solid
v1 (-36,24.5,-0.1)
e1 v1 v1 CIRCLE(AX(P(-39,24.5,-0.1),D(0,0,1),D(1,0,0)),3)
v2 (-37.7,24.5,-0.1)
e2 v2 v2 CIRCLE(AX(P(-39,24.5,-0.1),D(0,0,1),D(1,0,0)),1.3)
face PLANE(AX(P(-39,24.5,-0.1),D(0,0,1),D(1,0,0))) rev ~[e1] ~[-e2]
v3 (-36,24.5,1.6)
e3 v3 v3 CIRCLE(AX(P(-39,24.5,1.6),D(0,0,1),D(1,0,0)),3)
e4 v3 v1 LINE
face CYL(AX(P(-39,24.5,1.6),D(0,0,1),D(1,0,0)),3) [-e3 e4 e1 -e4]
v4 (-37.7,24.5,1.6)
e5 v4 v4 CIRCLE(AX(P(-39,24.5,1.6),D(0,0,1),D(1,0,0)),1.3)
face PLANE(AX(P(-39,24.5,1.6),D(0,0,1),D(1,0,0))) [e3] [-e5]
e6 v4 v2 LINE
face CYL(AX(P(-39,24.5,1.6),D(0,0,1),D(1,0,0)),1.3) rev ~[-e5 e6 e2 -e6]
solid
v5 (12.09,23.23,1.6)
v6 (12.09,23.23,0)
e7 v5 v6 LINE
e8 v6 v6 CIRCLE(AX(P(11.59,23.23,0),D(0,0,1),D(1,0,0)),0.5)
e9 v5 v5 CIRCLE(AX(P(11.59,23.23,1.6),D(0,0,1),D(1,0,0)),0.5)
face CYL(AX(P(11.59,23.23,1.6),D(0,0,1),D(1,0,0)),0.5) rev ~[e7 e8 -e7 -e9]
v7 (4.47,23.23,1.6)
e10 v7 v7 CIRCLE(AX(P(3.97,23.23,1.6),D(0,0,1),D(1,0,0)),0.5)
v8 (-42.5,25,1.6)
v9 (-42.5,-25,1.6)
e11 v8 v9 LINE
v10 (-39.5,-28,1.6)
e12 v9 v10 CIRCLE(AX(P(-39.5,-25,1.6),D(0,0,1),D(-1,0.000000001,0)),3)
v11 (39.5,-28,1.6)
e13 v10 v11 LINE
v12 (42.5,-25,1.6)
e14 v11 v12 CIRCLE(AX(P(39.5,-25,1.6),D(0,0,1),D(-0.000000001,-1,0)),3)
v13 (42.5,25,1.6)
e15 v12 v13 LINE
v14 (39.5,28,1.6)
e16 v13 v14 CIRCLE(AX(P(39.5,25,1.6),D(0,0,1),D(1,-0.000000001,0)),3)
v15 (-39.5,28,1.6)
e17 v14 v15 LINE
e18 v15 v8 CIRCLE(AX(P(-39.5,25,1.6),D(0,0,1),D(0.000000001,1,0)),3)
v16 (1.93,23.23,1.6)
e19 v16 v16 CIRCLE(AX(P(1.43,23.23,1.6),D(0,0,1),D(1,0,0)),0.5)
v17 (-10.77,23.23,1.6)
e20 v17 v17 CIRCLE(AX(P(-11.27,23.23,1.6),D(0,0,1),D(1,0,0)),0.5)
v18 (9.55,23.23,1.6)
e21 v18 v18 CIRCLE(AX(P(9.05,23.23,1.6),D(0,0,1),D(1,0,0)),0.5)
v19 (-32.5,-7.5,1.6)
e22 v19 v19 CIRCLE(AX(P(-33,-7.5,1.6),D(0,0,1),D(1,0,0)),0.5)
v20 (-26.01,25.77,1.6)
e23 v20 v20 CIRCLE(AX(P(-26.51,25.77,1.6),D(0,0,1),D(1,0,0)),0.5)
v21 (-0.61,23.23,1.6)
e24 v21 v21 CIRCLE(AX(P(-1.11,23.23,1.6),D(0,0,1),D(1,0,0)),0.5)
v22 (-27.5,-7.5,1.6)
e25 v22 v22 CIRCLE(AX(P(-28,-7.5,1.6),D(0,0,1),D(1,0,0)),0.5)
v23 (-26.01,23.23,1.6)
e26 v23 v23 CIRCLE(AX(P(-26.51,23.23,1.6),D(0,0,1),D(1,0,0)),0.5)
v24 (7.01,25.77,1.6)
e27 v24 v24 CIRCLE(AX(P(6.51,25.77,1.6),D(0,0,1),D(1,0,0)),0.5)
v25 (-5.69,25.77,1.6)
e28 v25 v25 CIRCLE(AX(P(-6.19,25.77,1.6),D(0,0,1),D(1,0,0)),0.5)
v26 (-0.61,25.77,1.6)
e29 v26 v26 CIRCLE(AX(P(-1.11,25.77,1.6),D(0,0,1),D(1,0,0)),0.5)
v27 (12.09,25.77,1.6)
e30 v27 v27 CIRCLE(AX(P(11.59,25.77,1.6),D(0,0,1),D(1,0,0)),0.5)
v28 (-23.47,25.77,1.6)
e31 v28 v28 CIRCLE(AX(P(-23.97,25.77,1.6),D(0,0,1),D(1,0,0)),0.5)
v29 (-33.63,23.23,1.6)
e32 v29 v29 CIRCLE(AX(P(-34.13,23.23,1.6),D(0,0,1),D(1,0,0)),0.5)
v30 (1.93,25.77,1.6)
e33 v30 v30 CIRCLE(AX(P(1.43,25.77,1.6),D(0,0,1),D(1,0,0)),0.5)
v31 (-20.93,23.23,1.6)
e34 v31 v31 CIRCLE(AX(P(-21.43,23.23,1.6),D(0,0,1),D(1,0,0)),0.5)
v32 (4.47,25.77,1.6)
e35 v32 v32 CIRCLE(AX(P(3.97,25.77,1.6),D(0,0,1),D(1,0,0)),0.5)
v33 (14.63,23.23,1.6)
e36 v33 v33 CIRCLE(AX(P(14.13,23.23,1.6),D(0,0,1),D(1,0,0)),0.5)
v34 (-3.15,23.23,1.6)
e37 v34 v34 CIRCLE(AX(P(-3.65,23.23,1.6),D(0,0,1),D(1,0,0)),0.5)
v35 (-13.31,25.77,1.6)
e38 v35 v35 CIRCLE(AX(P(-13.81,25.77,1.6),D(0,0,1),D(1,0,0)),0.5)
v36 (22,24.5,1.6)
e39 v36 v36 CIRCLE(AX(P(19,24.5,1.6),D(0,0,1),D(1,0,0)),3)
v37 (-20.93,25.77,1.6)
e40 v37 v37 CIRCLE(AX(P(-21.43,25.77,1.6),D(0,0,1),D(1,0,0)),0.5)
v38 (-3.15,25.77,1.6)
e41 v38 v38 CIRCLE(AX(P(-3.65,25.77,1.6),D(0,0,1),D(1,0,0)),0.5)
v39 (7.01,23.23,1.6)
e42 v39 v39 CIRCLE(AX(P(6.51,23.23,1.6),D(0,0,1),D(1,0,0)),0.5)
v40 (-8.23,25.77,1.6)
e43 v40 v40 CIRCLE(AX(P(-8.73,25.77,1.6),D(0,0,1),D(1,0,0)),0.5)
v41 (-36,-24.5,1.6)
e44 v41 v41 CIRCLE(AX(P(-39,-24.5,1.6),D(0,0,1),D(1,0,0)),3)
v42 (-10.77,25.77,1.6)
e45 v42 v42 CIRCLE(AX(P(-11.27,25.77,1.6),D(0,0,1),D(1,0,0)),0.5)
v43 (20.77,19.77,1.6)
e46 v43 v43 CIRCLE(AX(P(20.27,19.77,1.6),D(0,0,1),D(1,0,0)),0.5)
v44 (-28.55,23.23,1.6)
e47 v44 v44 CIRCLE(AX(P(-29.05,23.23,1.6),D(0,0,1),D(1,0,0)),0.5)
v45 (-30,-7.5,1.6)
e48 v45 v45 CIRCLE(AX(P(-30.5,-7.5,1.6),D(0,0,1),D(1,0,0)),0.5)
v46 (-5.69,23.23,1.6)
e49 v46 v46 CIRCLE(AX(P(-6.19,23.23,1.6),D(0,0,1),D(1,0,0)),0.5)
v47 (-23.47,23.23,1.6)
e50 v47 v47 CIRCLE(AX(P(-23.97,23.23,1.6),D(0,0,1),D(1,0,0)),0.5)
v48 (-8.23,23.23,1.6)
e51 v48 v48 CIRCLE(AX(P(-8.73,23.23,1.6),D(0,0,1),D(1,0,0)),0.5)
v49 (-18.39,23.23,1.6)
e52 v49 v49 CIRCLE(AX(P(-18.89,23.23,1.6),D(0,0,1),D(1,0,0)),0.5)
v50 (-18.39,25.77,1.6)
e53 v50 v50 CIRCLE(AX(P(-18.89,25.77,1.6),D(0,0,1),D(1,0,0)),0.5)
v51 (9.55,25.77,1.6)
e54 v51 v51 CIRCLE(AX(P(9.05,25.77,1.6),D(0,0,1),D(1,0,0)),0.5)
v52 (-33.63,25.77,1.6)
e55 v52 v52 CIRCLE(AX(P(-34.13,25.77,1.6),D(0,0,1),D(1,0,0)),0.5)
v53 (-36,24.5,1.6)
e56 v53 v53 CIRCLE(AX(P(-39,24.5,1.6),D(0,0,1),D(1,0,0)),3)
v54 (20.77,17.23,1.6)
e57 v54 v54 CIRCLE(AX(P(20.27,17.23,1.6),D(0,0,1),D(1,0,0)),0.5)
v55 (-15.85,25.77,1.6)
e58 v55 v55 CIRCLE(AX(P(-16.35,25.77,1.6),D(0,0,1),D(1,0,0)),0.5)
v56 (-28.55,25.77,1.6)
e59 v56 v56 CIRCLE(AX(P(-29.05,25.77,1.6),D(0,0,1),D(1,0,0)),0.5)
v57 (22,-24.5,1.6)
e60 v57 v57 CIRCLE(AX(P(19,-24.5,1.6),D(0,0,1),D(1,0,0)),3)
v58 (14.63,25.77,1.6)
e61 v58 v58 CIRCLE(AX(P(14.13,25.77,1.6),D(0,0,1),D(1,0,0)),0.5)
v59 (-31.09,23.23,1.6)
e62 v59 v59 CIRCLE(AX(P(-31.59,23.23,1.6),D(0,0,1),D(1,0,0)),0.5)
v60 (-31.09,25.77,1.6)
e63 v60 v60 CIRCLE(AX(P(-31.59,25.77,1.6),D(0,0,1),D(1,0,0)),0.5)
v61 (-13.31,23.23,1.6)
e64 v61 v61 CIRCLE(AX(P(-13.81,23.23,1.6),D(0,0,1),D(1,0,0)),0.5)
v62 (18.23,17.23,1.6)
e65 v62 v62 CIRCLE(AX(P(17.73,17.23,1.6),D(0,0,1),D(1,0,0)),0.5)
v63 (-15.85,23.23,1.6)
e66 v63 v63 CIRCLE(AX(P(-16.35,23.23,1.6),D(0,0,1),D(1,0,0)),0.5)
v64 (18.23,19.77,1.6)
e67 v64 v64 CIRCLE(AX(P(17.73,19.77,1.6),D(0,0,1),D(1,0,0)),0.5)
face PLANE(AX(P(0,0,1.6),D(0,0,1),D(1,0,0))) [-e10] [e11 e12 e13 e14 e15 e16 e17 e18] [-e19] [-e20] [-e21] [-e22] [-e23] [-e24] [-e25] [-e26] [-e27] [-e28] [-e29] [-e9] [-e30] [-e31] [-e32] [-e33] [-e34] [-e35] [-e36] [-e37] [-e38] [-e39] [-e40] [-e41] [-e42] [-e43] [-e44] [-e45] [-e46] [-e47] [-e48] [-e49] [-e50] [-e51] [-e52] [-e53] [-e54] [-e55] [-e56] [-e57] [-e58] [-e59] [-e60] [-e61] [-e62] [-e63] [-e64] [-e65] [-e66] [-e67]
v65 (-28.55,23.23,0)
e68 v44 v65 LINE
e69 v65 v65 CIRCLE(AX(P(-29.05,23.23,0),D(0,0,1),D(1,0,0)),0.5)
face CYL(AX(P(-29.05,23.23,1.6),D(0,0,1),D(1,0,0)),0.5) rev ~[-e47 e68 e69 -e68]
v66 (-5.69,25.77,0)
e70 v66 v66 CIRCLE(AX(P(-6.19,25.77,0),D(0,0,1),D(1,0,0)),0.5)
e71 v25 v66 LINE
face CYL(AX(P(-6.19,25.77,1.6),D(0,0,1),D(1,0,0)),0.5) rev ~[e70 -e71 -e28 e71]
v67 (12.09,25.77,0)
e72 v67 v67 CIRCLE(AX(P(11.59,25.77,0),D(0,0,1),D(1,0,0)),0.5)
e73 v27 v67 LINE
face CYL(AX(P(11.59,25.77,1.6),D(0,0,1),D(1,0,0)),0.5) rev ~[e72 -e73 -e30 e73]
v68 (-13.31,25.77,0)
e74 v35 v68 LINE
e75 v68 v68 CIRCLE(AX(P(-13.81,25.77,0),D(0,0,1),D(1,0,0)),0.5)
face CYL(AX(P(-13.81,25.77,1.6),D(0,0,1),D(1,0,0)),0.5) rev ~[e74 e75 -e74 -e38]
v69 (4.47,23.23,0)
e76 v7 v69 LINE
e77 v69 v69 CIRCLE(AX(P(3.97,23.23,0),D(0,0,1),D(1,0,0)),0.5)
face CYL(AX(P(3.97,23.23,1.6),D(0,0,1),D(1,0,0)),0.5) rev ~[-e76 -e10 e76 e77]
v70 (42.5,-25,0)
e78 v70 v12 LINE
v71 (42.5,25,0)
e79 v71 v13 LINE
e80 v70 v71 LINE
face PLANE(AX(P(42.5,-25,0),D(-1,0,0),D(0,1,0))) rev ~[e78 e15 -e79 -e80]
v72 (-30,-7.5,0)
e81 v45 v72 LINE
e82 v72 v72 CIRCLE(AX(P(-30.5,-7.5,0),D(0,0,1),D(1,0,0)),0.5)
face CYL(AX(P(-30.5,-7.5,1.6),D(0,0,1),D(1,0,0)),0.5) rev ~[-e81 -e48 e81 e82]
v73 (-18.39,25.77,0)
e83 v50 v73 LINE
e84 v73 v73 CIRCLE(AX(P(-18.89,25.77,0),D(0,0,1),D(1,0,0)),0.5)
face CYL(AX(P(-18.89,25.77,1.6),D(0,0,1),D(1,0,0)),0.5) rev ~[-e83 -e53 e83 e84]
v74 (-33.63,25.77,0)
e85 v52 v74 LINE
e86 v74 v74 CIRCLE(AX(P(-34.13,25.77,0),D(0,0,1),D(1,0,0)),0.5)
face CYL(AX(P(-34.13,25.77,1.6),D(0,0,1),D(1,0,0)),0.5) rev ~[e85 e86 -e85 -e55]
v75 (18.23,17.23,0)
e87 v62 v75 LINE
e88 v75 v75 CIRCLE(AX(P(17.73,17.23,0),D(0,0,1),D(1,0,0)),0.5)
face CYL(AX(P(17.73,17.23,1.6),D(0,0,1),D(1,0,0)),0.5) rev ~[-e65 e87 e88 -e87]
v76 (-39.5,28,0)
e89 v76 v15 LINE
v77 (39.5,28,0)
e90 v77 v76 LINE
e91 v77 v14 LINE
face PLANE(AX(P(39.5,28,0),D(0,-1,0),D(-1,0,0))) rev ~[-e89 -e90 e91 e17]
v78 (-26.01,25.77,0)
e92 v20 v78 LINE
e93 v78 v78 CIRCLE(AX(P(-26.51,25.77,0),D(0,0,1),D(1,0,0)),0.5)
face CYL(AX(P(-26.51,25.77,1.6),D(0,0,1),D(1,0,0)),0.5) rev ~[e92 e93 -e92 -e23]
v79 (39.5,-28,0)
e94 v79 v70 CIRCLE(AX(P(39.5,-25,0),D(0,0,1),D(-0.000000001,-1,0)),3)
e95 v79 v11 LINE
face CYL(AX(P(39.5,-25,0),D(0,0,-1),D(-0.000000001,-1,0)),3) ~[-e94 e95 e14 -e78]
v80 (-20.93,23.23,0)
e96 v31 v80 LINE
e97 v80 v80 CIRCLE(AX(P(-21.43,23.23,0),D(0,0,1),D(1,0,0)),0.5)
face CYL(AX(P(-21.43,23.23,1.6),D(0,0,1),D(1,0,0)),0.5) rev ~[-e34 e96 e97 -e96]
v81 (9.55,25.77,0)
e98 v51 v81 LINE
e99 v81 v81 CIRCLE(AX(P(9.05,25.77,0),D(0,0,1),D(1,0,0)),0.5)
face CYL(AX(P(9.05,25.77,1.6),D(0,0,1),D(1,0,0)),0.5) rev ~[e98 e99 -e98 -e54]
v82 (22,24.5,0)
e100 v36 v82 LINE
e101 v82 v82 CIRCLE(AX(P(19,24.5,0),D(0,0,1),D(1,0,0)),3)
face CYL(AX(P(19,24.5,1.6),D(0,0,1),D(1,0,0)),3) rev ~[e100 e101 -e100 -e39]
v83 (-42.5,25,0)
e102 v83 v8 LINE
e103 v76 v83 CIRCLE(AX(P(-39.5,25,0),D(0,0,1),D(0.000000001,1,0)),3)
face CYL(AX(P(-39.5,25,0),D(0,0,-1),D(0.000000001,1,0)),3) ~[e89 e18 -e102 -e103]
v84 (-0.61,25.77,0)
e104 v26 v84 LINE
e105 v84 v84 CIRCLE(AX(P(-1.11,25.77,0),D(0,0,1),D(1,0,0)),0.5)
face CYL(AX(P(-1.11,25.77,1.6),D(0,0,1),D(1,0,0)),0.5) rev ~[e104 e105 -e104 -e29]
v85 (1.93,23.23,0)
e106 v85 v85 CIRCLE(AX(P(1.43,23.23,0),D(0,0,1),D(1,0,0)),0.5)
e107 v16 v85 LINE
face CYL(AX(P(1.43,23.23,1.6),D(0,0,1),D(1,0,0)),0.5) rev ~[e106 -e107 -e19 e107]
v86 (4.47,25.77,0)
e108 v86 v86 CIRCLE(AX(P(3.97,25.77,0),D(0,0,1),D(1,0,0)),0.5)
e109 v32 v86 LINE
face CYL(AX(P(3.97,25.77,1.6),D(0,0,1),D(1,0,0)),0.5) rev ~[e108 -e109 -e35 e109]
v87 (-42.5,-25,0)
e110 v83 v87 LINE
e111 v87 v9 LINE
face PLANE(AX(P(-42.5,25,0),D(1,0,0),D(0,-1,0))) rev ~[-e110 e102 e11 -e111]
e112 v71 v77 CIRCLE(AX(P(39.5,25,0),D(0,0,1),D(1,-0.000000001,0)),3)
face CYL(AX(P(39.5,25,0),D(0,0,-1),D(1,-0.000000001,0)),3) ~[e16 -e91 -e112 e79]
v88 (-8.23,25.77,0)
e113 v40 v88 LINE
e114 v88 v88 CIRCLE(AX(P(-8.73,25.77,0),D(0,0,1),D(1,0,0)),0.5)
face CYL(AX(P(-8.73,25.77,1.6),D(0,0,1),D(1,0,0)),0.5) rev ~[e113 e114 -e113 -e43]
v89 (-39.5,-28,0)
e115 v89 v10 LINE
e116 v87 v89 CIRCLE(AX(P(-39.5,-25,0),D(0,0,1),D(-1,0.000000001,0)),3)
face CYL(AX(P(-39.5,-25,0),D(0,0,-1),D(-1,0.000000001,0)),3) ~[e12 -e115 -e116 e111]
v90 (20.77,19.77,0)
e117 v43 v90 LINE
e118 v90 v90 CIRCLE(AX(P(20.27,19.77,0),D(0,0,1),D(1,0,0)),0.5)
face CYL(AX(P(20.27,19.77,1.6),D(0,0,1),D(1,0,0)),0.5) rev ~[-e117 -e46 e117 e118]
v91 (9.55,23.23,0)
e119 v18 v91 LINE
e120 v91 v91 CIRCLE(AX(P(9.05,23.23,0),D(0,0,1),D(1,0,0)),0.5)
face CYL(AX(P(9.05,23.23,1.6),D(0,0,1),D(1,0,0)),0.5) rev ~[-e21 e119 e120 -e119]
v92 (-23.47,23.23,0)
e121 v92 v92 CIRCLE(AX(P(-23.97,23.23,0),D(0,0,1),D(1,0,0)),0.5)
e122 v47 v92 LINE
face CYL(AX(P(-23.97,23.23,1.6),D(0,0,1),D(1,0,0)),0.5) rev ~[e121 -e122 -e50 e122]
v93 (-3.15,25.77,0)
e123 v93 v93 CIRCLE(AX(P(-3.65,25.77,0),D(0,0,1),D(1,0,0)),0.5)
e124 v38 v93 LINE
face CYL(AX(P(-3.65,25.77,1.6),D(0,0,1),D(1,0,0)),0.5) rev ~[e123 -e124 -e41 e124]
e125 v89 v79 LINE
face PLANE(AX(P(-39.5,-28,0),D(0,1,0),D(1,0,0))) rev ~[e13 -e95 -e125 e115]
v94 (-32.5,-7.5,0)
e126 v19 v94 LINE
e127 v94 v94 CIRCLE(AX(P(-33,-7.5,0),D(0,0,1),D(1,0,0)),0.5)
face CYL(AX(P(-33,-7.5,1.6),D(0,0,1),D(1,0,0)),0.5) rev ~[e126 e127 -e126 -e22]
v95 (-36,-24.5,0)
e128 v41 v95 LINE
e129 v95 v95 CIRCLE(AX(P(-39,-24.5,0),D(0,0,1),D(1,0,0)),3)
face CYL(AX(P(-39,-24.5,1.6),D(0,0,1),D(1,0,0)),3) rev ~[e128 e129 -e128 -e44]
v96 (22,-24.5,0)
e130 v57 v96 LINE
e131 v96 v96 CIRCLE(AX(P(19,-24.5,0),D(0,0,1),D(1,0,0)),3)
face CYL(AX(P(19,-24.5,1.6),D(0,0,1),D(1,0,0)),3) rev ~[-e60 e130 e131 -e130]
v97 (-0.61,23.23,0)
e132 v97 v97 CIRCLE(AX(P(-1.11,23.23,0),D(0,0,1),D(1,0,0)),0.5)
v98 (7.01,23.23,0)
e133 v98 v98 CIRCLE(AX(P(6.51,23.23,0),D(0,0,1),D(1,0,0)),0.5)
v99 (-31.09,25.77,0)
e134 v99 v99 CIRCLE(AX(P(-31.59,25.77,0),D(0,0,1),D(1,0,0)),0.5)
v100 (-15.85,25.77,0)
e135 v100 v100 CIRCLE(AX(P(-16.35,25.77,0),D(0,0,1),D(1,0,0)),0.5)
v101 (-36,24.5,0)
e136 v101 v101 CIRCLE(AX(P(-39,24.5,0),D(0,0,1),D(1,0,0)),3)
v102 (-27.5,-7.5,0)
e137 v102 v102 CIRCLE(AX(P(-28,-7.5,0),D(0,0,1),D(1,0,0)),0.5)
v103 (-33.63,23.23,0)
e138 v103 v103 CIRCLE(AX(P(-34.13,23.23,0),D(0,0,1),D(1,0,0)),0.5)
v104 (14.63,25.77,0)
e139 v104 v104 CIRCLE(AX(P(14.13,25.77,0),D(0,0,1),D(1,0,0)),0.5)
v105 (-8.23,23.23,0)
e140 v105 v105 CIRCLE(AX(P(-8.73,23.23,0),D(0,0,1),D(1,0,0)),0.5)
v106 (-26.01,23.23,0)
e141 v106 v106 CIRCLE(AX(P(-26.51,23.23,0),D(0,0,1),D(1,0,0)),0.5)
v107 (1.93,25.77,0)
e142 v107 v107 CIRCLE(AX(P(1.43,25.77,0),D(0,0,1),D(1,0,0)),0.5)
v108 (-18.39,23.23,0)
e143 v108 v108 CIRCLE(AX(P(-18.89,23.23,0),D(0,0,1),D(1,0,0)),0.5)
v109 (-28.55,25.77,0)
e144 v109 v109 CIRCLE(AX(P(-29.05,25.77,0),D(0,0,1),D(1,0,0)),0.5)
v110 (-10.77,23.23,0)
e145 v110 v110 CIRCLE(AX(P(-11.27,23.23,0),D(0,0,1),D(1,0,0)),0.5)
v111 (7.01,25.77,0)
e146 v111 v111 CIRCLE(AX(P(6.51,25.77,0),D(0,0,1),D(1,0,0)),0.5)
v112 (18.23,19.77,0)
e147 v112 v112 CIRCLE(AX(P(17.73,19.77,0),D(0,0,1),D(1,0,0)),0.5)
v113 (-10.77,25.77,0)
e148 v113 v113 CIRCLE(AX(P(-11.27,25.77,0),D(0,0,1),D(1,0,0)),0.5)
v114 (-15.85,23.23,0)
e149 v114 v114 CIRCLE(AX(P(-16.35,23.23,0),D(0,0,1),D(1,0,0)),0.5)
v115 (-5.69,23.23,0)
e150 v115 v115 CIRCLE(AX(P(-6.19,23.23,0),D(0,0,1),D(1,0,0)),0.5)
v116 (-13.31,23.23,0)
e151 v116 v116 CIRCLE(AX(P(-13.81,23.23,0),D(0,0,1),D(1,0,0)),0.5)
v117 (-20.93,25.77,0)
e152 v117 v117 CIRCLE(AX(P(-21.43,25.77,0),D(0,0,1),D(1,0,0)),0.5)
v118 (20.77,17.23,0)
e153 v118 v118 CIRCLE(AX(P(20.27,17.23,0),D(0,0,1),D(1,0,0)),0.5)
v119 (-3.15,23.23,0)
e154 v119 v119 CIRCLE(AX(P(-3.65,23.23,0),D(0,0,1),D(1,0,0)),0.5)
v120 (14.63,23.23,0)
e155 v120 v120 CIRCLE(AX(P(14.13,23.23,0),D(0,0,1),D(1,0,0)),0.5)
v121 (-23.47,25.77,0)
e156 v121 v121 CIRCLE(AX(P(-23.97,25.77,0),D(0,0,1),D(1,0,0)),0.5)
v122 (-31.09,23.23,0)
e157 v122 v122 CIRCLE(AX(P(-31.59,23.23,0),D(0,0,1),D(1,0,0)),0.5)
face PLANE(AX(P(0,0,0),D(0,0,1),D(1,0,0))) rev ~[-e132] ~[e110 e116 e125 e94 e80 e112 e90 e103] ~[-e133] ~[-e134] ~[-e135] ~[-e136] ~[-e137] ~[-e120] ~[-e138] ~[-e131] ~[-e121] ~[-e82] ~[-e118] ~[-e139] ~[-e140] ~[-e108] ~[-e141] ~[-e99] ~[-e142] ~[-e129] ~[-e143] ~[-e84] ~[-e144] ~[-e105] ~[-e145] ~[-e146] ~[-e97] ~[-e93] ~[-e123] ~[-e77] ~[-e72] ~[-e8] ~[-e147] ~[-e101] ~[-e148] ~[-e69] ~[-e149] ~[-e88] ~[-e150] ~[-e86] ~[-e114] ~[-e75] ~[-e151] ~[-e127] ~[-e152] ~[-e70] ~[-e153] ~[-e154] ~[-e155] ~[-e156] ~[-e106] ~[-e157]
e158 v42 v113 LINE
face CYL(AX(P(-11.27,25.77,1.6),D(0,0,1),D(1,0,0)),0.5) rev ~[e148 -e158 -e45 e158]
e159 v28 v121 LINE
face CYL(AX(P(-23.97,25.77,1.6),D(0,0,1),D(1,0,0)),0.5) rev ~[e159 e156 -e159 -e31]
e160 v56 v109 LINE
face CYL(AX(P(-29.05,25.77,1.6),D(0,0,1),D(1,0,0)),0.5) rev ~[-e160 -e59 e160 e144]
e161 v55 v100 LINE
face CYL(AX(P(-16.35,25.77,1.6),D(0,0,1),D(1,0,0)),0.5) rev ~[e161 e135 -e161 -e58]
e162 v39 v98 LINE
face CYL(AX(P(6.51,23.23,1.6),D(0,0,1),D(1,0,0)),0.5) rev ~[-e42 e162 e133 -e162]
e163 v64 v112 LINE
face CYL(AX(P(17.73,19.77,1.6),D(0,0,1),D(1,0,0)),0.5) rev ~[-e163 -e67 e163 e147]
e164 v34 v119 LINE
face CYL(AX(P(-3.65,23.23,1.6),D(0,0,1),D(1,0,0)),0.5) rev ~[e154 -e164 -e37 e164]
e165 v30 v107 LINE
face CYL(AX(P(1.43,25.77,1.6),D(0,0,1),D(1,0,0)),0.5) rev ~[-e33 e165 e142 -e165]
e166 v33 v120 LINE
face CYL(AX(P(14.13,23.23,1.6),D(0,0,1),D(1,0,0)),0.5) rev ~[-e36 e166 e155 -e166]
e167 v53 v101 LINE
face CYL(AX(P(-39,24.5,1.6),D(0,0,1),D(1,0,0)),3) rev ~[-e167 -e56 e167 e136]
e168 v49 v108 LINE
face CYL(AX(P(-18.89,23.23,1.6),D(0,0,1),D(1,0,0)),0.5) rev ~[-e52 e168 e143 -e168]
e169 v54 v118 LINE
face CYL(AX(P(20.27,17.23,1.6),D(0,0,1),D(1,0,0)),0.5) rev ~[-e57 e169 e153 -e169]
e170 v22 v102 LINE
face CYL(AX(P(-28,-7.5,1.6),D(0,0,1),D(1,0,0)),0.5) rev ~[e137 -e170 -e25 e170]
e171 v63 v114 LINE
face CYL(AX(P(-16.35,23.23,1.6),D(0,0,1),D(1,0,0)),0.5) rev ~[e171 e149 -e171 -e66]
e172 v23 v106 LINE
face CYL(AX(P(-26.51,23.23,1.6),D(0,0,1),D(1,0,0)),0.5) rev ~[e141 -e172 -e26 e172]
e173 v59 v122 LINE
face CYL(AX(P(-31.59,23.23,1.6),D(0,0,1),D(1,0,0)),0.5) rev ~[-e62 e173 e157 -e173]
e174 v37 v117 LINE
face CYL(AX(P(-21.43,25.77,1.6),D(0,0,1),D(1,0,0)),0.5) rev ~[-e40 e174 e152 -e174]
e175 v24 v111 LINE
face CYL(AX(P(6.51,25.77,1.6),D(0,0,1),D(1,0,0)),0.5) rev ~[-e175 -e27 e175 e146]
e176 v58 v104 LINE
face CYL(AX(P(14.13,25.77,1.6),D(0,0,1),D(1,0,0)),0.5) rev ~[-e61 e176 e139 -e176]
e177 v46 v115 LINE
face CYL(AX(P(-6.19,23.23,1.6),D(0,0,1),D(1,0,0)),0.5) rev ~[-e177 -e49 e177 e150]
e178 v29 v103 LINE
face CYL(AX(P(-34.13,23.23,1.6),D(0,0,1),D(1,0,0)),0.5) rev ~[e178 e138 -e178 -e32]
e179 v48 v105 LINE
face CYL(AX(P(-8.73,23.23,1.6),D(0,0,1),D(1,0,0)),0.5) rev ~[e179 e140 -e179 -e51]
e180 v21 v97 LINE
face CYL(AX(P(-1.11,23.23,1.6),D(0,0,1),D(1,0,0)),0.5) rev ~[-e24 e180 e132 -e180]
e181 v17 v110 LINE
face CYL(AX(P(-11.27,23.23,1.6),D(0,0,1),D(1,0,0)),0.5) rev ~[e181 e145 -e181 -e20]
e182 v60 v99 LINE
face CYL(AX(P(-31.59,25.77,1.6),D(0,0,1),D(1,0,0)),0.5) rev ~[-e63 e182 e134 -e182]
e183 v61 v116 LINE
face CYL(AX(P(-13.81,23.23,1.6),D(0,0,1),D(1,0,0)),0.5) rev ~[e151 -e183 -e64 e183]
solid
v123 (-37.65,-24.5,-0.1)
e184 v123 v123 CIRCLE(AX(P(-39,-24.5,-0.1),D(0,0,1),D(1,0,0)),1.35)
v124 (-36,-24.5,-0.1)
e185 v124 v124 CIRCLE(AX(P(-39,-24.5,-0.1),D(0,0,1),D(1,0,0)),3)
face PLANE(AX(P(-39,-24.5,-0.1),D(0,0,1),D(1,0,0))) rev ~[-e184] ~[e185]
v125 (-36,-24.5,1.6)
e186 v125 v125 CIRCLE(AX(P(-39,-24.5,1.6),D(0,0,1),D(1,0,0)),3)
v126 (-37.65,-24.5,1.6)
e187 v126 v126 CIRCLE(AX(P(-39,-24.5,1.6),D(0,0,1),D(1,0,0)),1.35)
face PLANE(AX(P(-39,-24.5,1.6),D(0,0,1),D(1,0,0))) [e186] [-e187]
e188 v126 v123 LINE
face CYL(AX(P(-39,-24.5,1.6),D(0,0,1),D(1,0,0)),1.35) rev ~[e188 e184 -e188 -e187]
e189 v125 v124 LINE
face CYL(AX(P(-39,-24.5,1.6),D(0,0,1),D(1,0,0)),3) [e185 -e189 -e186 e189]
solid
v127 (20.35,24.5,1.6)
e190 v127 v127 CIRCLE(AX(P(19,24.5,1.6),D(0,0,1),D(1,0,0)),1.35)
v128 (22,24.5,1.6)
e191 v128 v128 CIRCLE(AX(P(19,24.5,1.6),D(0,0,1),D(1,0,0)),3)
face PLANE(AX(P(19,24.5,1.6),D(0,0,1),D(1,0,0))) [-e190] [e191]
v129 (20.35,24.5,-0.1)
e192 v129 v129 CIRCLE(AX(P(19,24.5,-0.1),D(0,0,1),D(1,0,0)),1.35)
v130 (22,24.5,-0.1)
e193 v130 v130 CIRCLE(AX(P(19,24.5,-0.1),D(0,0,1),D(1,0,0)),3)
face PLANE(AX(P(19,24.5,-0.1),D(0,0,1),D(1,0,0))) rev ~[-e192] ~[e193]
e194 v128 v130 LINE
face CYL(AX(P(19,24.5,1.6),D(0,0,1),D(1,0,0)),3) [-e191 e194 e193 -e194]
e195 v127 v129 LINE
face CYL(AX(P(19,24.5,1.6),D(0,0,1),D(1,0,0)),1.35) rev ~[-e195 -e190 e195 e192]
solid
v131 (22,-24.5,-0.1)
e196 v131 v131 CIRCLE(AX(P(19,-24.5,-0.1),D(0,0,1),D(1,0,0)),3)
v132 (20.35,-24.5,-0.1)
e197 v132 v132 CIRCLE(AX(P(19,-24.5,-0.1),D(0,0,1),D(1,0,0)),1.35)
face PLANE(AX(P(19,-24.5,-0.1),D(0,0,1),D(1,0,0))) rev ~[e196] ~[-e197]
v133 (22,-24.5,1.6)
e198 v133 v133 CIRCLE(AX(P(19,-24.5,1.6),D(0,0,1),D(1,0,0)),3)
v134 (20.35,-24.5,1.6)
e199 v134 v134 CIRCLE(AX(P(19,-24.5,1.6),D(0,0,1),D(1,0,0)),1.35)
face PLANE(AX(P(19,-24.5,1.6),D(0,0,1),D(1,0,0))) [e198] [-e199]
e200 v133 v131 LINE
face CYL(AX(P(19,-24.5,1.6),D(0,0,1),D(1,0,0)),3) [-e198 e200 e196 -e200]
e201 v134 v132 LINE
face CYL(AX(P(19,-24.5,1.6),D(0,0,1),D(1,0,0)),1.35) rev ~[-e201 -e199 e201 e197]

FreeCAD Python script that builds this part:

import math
import FreeCAD as App
import Part
import Sketcher

V = App.Vector
Q = App.Units.Quantity

doc = App.newDocument("Part")
params = doc.addObject("Spreadsheet::Sheet", "Params")
for row, (alias, value) in enumerate([
    ("sketch1_radius", "3 mm"),
    ("sketch1_width", "79 mm"),
    ("sketch1_height", "50 mm"),
    ("pad1_length", "1.6 mm"),
    ("sketch2_diameter", "6 mm"),
    ("sketch3_diameter", "1 mm"),
    ("sketch4_diameter", "1 mm"),
    ("sketch5_diameter", "1 mm"),
    ("sketch6_diameter", "6 mm"),
    ("sketch6_diameter2", "2.7 mm"),
    ("pad2_length", "1.7 mm"),
    ("sketch7_diameter", "6 mm"),
    ("sketch7_diameter2", "2.7 mm"),
    ("pad3_length", "1.7 mm"),
    ("sketch8_diameter", "6 mm"),
    ("sketch8_diameter2", "2.7 mm"),
    ("pad4_length", "1.7 mm"),
    ("sketch9_diameter", "6 mm"),
    ("sketch9_diameter2", "2.6 mm"),
    ("pad5_length", "1.7 mm"),
], start=1):
    params.set(f"A{row}", alias)
    params.set(f"B{row}", "=" + value)
    params.setAlias(f"B{row}", alias)

body = doc.addObject("PartDesign::Body", "Body")

# Sketch on XY plane
sketch1 = doc.addObject("Sketcher::SketchObject", "Sketch")
body.addObject(sketch1)
sketch1.AttachmentSupport = (doc.XY_Plane, [""])
sketch1.MapMode = "FlatFace"
sketch1.addGeometry([
    Part.LineSegment(V(-39.5, -28, 0), V(39.5, -28, 0)),  # 0
    Part.ArcOfCircle(Part.Circle(V(39.5, -25, 0), V(0, 0, 1), 3), math.radians(-90), math.radians(0)),  # 1
    Part.LineSegment(V(42.5, -25, 0), V(42.5, 25, 0)),  # 2
    Part.ArcOfCircle(Part.Circle(V(39.5, 25, 0), V(0, 0, 1), 3), math.radians(0), math.radians(90)),  # 3
    Part.LineSegment(V(39.5, 28, 0), V(-39.5, 28, 0)),  # 4
    Part.ArcOfCircle(Part.Circle(V(-39.5, 25, 0), V(0, 0, 1), 3), math.radians(90), math.radians(180)),  # 5
    Part.LineSegment(V(-42.5, 25, 0), V(-42.5, -25, 0)),  # 6
    Part.ArcOfCircle(Part.Circle(V(-39.5, -25, 0), V(0, 0, 1), 3), math.radians(180), math.radians(270)),  # 7
], False)
sketch1.addConstraint([
    Sketcher.Constraint("Tangent", 0, 2, 1, 1),
    Sketcher.Constraint("Tangent", 1, 2, 2, 1),
    Sketcher.Constraint("Tangent", 2, 2, 3, 1),
    Sketcher.Constraint("Tangent", 3, 2, 4, 1),
    Sketcher.Constraint("Tangent", 4, 2, 5, 1),
    Sketcher.Constraint("Tangent", 5, 2, 6, 1),
    Sketcher.Constraint("Tangent", 6, 2, 7, 1),
    Sketcher.Constraint("Tangent", 7, 2, 0, 1),
    Sketcher.Constraint("Horizontal", 0),
    Sketcher.Constraint("Vertical", 2),
    Sketcher.Constraint("Horizontal", 4),
    Sketcher.Constraint("Vertical", 6),
    Sketcher.Constraint("Equal", 1, 3),
    Sketcher.Constraint("Equal", 3, 5),
    Sketcher.Constraint("Equal", 5, 7),
    Sketcher.Constraint("Symmetric", 1, 3, 5, 3, -1, 1),
    Sketcher.Constraint("Radius", 1, Q("3 mm")),
    Sketcher.Constraint("DistanceX", 0, 1, 0, 2, Q("79 mm")),
    Sketcher.Constraint("DistanceY", 2, 1, 2, 2, Q("50 mm")),
])
sketch1.setExpression("Constraints[16]", "Params.sketch1_radius")
sketch1.setExpression("Constraints[17]", "Params.sketch1_width")
sketch1.setExpression("Constraints[18]", "Params.sketch1_height")
pad1 = doc.addObject("PartDesign::Pad", "Pad")
body.addObject(pad1)
pad1.Profile = sketch1
pad1.setExpression("Length", "Params.pad1_length")

# Sketch on XY plane
sketch2 = doc.addObject("Sketcher::SketchObject", "Sketch001")
body.addObject(sketch2)
sketch2.AttachmentSupport = (doc.XY_Plane, [""])
sketch2.MapMode = "FlatFace"
sketch2.AttachmentOffset = App.Placement(V(0, 0, 1.6), App.Rotation())
sketch2.addGeometry([
    Part.Circle(V(-39, 24.5, 0), V(0, 0, 1), 3),
    Part.Circle(V(-39, -24.5, 0), V(0, 0, 1), 3),
    Part.Circle(V(19, -24.5, 0), V(0, 0, 1), 3),
    Part.Circle(V(19, 24.5, 0), V(0, 0, 1), 3),
], False)
sketch2.addConstraint([
    Sketcher.Constraint("Equal", 0, 1),
    Sketcher.Constraint("Equal", 1, 2),
    Sketcher.Constraint("Equal", 2, 3),
    Sketcher.Constraint("Symmetric", 0, 3, 1, 3, -1),
    Sketcher.Constraint("Symmetric", 2, 3, 3, 3, -1),
    Sketcher.Constraint("Horizontal", 1, 3, 2, 3),
    Sketcher.Constraint("Diameter", 0, Q("6 mm")),
    Sketcher.Constraint("DistanceX", 0, 3, -1, 1, Q("39 mm")),
    Sketcher.Constraint("DistanceX", -1, 1, 2, 3, Q("19 mm")),
    Sketcher.Constraint("DistanceY", 1, 3, 0, 3, Q("49 mm")),
])
sketch2.setExpression("Constraints[6]", "Params.sketch2_diameter")
pocket1 = doc.addObject("PartDesign::Pocket", "Pocket")
body.addObject(pocket1)
pocket1.Profile = sketch2
pocket1.Type = "ThroughAll"

# Sketch on XY plane
sketch3 = doc.addObject("Sketcher::SketchObject", "Sketch002")
body.addObject(sketch3)
sketch3.AttachmentSupport = (doc.XY_Plane, [""])
sketch3.MapMode = "FlatFace"
sketch3.AttachmentOffset = App.Placement(V(0, 0, 1.6), App.Rotation())
sketch3.addGeometry([
    Part.Circle(V(-33, -7.5, 0), V(0, 0, 1), 0.5),
    Part.Circle(V(-30.5, -7.5, 0), V(0, 0, 1), 0.5),
    Part.Circle(V(-28, -7.5, 0), V(0, 0, 1), 0.5),
], False)
sketch3.addConstraint([
    Sketcher.Constraint("Equal", 0, 1),
    Sketcher.Constraint("Equal", 1, 2),
    Sketcher.Constraint("Horizontal", 0, 3, 1, 3),
    Sketcher.Constraint("Horizontal", 1, 3, 2, 3),
    Sketcher.Constraint("Diameter", 0, Q("1 mm")),
    Sketcher.Constraint("DistanceX", 0, 3, -1, 1, Q("33 mm")),
    Sketcher.Constraint("DistanceX", 2, 3, -1, 1, Q("28 mm")),
    Sketcher.Constraint("DistanceY", 0, 3, -1, 1, Q("7.5 mm")),
    Sketcher.Constraint("DistanceX", 1, 3, -1, 1, Q("30.5 mm")),
])
sketch3.setExpression("Constraints[4]", "Params.sketch3_diameter")
pocket2 = doc.addObject("PartDesign::Pocket", "Pocket001")
body.addObject(pocket2)
pocket2.Profile = sketch3
pocket2.Type = "ThroughAll"

# Sketch on XY plane
sketch4 = doc.addObject("Sketcher::SketchObject", "Sketch003")
body.addObject(sketch4)
sketch4.AttachmentSupport = (doc.XY_Plane, [""])
sketch4.MapMode = "FlatFace"
sketch4.AttachmentOffset = App.Placement(V(0, 0, 1.6), App.Rotation())
sketch4.addGeometry([
    Part.Circle(V(-34.1, 25.8, 0), V(0, 0, 1), 0.5),  # 0
    Part.Circle(V(-34.1, 23.2, 0), V(0, 0, 1), 0.5),  # 1
    Part.Circle(V(-31.6, 25.8, 0), V(0, 0, 1), 0.5),  # 2
    Part.Circle(V(-31.6, 23.2, 0), V(0, 0, 1), 0.5),  # 3
    Part.Circle(V(-29.1, 25.8, 0), V(0, 0, 1), 0.5),  # 4
    Part.Circle(V(-29.1, 23.2, 0), V(0, 0, 1), 0.5),  # 5
    Part.Circle(V(-26.5, 25.8, 0), V(0, 0, 1), 0.5),  # 6
    Part.Circle(V(-26.5, 23.2, 0), V(0, 0, 1), 0.5),  # 7
    Part.Circle(V(-24, 25.8, 0), V(0, 0, 1), 0.5),  # 8
    Part.Circle(V(-24, 23.2, 0), V(0, 0, 1), 0.5),  # 9
    Part.Circle(V(-21.4, 25.8, 0), V(0, 0, 1), 0.5),  # 10
    Part.Circle(V(-21.4, 23.2, 0), V(0, 0, 1), 0.5),  # 11
    Part.Circle(V(-18.9, 25.8, 0), V(0, 0, 1), 0.5),  # 12
    Part.Circle(V(-18.9, 23.2, 0), V(0, 0, 1), 0.5),  # 13
    Part.Circle(V(-16.4, 25.8, 0), V(0, 0, 1), 0.5),  # 14
    Part.Circle(V(-16.4, 23.2, 0), V(0, 0, 1), 0.5),  # 15
    Part.Circle(V(-13.8, 25.8, 0), V(0, 0, 1), 0.5),  # 16
    Part.Circle(V(-13.8, 23.2, 0), V(0, 0, 1), 0.5),  # 17
    Part.Circle(V(-11.3, 25.8, 0), V(0, 0, 1), 0.5),  # 18
    Part.Circle(V(-11.3, 23.2, 0), V(0, 0, 1), 0.5),  # 19
    Part.Circle(V(-8.7, 25.8, 0), V(0, 0, 1), 0.5),  # 20
    Part.Circle(V(-8.7, 23.2, 0), V(0, 0, 1), 0.5),  # 21
    Part.Circle(V(-6.2, 25.8, 0), V(0, 0, 1), 0.5),  # 22
    Part.Circle(V(-6.2, 23.2, 0), V(0, 0, 1), 0.5),  # 23
    Part.Circle(V(-3.6, 25.8, 0), V(0, 0, 1), 0.5),  # 24
    Part.Circle(V(-3.6, 23.2, 0), V(0, 0, 1), 0.5),  # 25
    Part.Circle(V(-1.1, 25.8, 0), V(0, 0, 1), 0.5),  # 26
    Part.Circle(V(-1.1, 23.2, 0), V(0, 0, 1), 0.5),  # 27
    Part.Circle(V(1.4, 25.8, 0), V(0, 0, 1), 0.5),  # 28
    Part.Circle(V(1.4, 23.2, 0), V(0, 0, 1), 0.5),  # 29
    Part.Circle(V(4, 25.8, 0), V(0, 0, 1), 0.5),  # 30
    Part.Circle(V(4, 23.2, 0), V(0, 0, 1), 0.5),  # 31
    Part.Circle(V(6.5, 25.8, 0), V(0, 0, 1), 0.5),  # 32
    Part.Circle(V(6.5, 23.2, 0), V(0, 0, 1), 0.5),  # 33
    Part.Circle(V(9.1, 25.8, 0), V(0, 0, 1), 0.5),  # 34
    Part.Circle(V(9.1, 23.2, 0), V(0, 0, 1), 0.5),  # 35
    Part.Circle(V(11.6, 25.8, 0), V(0, 0, 1), 0.5),  # 36
    Part.Circle(V(11.6, 23.2, 0), V(0, 0, 1), 0.5),  # 37
    Part.Circle(V(14.1, 25.8, 0), V(0, 0, 1), 0.5),  # 38
    Part.Circle(V(14.1, 23.2, 0), V(0, 0, 1), 0.5),  # 39
], False)
sketch4.addConstraint([
    Sketcher.Constraint("Equal", 0, 1),
    Sketcher.Constraint("Equal", 1, 2),
    Sketcher.Constraint("Equal", 2, 3),
    Sketcher.Constraint("Equal", 3, 4),
    Sketcher.Constraint("Equal", 4, 5),
    Sketcher.Constraint("Equal", 5, 6),
    Sketcher.Constraint("Equal", 6, 7),
    Sketcher.Constraint("Equal", 7, 8),
    Sketcher.Constraint("Equal", 8, 9),
    Sketcher.Constraint("Equal", 9, 10),
    Sketcher.Constraint("Equal", 10, 11),
    Sketcher.Constraint("Equal", 11, 12),
    Sketcher.Constraint("Equal", 12, 13),
    Sketcher.Constraint("Equal", 13, 14),
    Sketcher.Constraint("Equal", 14, 15),
    Sketcher.Constraint("Equal", 15, 16),
    Sketcher.Constraint("Equal", 16, 17),
    Sketcher.Constraint("Equal", 17, 18),
    Sketcher.Constraint("Equal", 18, 19),
    Sketcher.Constraint("Equal", 19, 20),
    Sketcher.Constraint("Equal", 20, 21),
    Sketcher.Constraint("Equal", 21, 22),
    Sketcher.Constraint("Equal", 22, 23),
    Sketcher.Constraint("Equal", 23, 24),
    Sketcher.Constraint("Equal", 24, 25),
    Sketcher.Constraint("Equal", 25, 26),
    Sketcher.Constraint("Equal", 26, 27),
    Sketcher.Constraint("Equal", 27, 28),
    Sketcher.Constraint("Equal", 28, 29),
    Sketcher.Constraint("Equal", 29, 30),
    Sketcher.Constraint("Equal", 30, 31),
    Sketcher.Constraint("Equal", 31, 32),
    Sketcher.Constraint("Equal", 32, 33),
    Sketcher.Constraint("Equal", 33, 34),
    Sketcher.Constraint("Equal", 34, 35),
    Sketcher.Constraint("Equal", 35, 36),
    Sketcher.Constraint("Equal", 36, 37),
    Sketcher.Constraint("Equal", 37, 38),
    Sketcher.Constraint("Equal", 38, 39),
    Sketcher.Constraint("Horizontal", 0, 3, 2, 3),
    Sketcher.Constraint("Horizontal", 1, 3, 3, 3),
    Sketcher.Constraint("Horizontal", 2, 3, 4, 3),
    Sketcher.Constraint("Horizontal", 3, 3, 5, 3),
    Sketcher.Constraint("Horizontal", 4, 3, 6, 3),
    Sketcher.Constraint("Horizontal", 5, 3, 7, 3),
    Sketcher.Constraint("Horizontal", 6, 3, 8, 3),
    Sketcher.Constraint("Horizontal", 7, 3, 9, 3),
    Sketcher.Constraint("Horizontal", 8, 3, 10, 3),
    Sketcher.Constraint("Horizontal", 9, 3, 11, 3),
    Sketcher.Constraint("Horizontal", 10, 3, 12, 3),
    Sketcher.Constraint("Horizontal", 11, 3, 13, 3),
    Sketcher.Constraint("Horizontal", 12, 3, 14, 3),
    Sketcher.Constraint("Horizontal", 13, 3, 15, 3),
    Sketcher.Constraint("Horizontal", 14, 3, 16, 3),
    Sketcher.Constraint("Horizontal", 15, 3, 17, 3),
    Sketcher.Constraint("Horizontal", 16, 3, 18, 3),
    Sketcher.Constraint("Horizontal", 17, 3, 19, 3),
    Sketcher.Constraint("Horizontal", 18, 3, 20, 3),
    Sketcher.Constraint("Horizontal", 19, 3, 21, 3),
    Sketcher.Constraint("Horizontal", 20, 3, 22, 3),
    Sketcher.Constraint("Horizontal", 21, 3, 23, 3),
    Sketcher.Constraint("Horizontal", 22, 3, 24, 3),
    Sketcher.Constraint("Horizontal", 23, 3, 25, 3),
    Sketcher.Constraint("Horizontal", 24, 3, 26, 3),
    Sketcher.Constraint("Horizontal", 25, 3, 27, 3),
    Sketcher.Constraint("Horizontal", 26, 3, 28, 3),
    Sketcher.Constraint("Horizontal", 27, 3, 29, 3),
    Sketcher.Constraint("Horizontal", 28, 3, 30, 3),
    Sketcher.Constraint("Horizontal", 29, 3, 31, 3),
    Sketcher.Constraint("Horizontal", 30, 3, 32, 3),
    Sketcher.Constraint("Horizontal", 31, 3, 33, 3),
    Sketcher.Constraint("Horizontal", 32, 3, 34, 3),
    Sketcher.Constraint("Horizontal", 33, 3, 35, 3),
    Sketcher.Constraint("Horizontal", 34, 3, 36, 3),
    Sketcher.Constraint("Horizontal", 35, 3, 37, 3),
    Sketcher.Constraint("Horizontal", 36, 3, 38, 3),
    Sketcher.Constraint("Horizontal", 37, 3, 39, 3),
    Sketcher.Constraint("Vertical", 0, 3, 1, 3),
    Sketcher.Constraint("Vertical", 2, 3, 3, 3),
    Sketcher.Constraint("Vertical", 4, 3, 5, 3),
    Sketcher.Constraint("Vertical", 6, 3, 7, 3),
    Sketcher.Constraint("Vertical", 8, 3, 9, 3),
    Sketcher.Constraint("Vertical", 10, 3, 11, 3),
    Sketcher.Constraint("Vertical", 12, 3, 13, 3),
    Sketcher.Constraint("Vertical", 14, 3, 15, 3),
    Sketcher.Constraint("Vertical", 16, 3, 17, 3),
    Sketcher.Constraint("Vertical", 18, 3, 19, 3),
    Sketcher.Constraint("Vertical", 20, 3, 21, 3),
    Sketcher.Constraint("Vertical", 22, 3, 23, 3),
    Sketcher.Constraint("Vertical", 24, 3, 25, 3),
    Sketcher.Constraint("Vertical", 26, 3, 27, 3),
    Sketcher.Constraint("Vertical", 28, 3, 29, 3),
    Sketcher.Constraint("Vertical", 30, 3, 31, 3),
    Sketcher.Constraint("Vertical", 32, 3, 33, 3),
    Sketcher.Constraint("Vertical", 34, 3, 35, 3),
    Sketcher.Constraint("Vertical", 36, 3, 37, 3),
    Sketcher.Constraint("Vertical", 38, 3, 39, 3),
    Sketcher.Constraint("Diameter", 0, Q("1 mm")),
    Sketcher.Constraint("DistanceX", 0, 3, -1, 1, Q("34.13 mm")),
    Sketcher.Constraint("DistanceY", -1, 1, 0, 3, Q("25.77 mm")),
    Sketcher.Constraint("DistanceY", -1, 1, 1, 3, Q("23.23 mm")),
    Sketcher.Constraint("DistanceX", 2, 3, -1, 1, Q("31.59 mm")),
    Sketcher.Constraint("DistanceX", 4, 3, -1, 1, Q("29.05 mm")),
    Sketcher.Constraint("DistanceX", 6, 3, -1, 1, Q("26.51 mm")),
    Sketcher.Constraint("DistanceX", 8, 3, -1, 1, Q("23.97 mm")),
    Sketcher.Constraint("DistanceX", 10, 3, -1, 1, Q("21.43 mm")),
    Sketcher.Constraint("DistanceX", 12, 3, -1, 1, Q("18.89 mm")),
    Sketcher.Constraint("DistanceX", 14, 3, -1, 1, Q("16.35 mm")),
    Sketcher.Constraint("DistanceX", 16, 3, -1, 1, Q("13.81 mm")),
    Sketcher.Constraint("DistanceX", 18, 3, -1, 1, Q("11.27 mm")),
    Sketcher.Constraint("DistanceX", 20, 3, -1, 1, Q("8.73 mm")),
    Sketcher.Constraint("DistanceX", 22, 3, -1, 1, Q("6.19 mm")),
    Sketcher.Constraint("DistanceX", 24, 3, -1, 1, Q("3.65 mm")),
    Sketcher.Constraint("DistanceX", 26, 3, -1, 1, Q("1.11 mm")),
    Sketcher.Constraint("DistanceX", -1, 1, 28, 3, Q("1.43 mm")),
    Sketcher.Constraint("DistanceX", -1, 1, 30, 3, Q("3.97 mm")),
    Sketcher.Constraint("DistanceX", -1, 1, 32, 3, Q("6.51 mm")),
    Sketcher.Constraint("DistanceX", -1, 1, 34, 3, Q("9.05 mm")),
    Sketcher.Constraint("DistanceX", -1, 1, 36, 3, Q("11.59 mm")),
    Sketcher.Constraint("DistanceX", -1, 1, 38, 3, Q("14.13 mm")),
])
sketch4.setExpression("Constraints[97]", "Params.sketch4_diameter")
pocket3 = doc.addObject("PartDesign::Pocket", "Pocket002")
body.addObject(pocket3)
pocket3.Profile = sketch4
pocket3.Type = "ThroughAll"

# Sketch on XY plane
sketch5 = doc.addObject("Sketcher::SketchObject", "Sketch004")
body.addObject(sketch5)
sketch5.AttachmentSupport = (doc.XY_Plane, [""])
sketch5.MapMode = "FlatFace"
sketch5.AttachmentOffset = App.Placement(V(0, 0, 1.6), App.Rotation())
sketch5.addGeometry([
    Part.Circle(V(20.3, 19.8, 0), V(0, 0, 1), 0.5),
    Part.Circle(V(17.7, 19.8, 0), V(0, 0, 1), 0.5),
    Part.Circle(V(17.7, 17.2, 0), V(0, 0, 1), 0.5),
    Part.Circle(V(20.3, 17.2, 0), V(0, 0, 1), 0.5),
], False)
sketch5.addConstraint([
    Sketcher.Constraint("Equal", 0, 1),
    Sketcher.Constraint("Equal", 1, 2),
    Sketcher.Constraint("Equal", 2, 3),
    Sketcher.Constraint("Horizontal", 0, 3, 1, 3),
    Sketcher.Constraint("Horizontal", 2, 3, 3, 3),
    Sketcher.Constraint("Vertical", 1, 3, 2, 3),
    Sketcher.Constraint("Vertical", 0, 3, 3, 3),
    Sketcher.Constraint("Diameter", 0, Q("1 mm")),
    Sketcher.Constraint("DistanceX", -1, 1, 0, 3, Q("20.27 mm")),
    Sketcher.Constraint("DistanceY", -1, 1, 0, 3, Q("19.77 mm")),
    Sketcher.Constraint("DistanceX", -1, 1, 1, 3, Q("17.73 mm")),
    Sketcher.Constraint("DistanceY", -1, 1, 2, 3, Q("17.23 mm")),
])
sketch5.setExpression("Constraints[7]", "Params.sketch5_diameter")
pocket4 = doc.addObject("PartDesign::Pocket", "Pocket003")
body.addObject(pocket4)
pocket4.Profile = sketch5
pocket4.Type = "ThroughAll"
body2 = doc.addObject("PartDesign::Body", "Body001")

# Sketch on XY plane
sketch6 = doc.addObject("Sketcher::SketchObject", "Sketch005")
body2.addObject(sketch6)
sketch6.AttachmentSupport = (doc.getObject("XY_Plane001"), [""])
sketch6.MapMode = "FlatFace"
sketch6.AttachmentOffset = App.Placement(V(0, 0, 1.6), App.Rotation())
sketch6.addGeometry([
    Part.Circle(V(-39, -24.5, 0), V(0, 0, 1), 3),
    Part.Circle(V(-39, -24.5, 0), V(0, 0, 1), 1.4),
], False)
sketch6.addConstraint([
    Sketcher.Constraint("Coincident", 1, 3, 0, 3),
    Sketcher.Constraint("Diameter", 0, Q("6 mm")),
    Sketcher.Constraint("Diameter", 1, Q("2.7 mm")),
    Sketcher.Constraint("DistanceX", 0, 3, -1, 1, Q("39 mm")),
    Sketcher.Constraint("DistanceY", 0, 3, -1, 1, Q("24.5 mm")),
])
sketch6.setExpression("Constraints[1]", "Params.sketch6_diameter")
sketch6.setExpression("Constraints[2]", "Params.sketch6_diameter2")
pad2 = doc.addObject("PartDesign::Pad", "Pad001")
body2.addObject(pad2)
pad2.Profile = sketch6
pad2.setExpression("Length", "Params.pad2_length")
pad2.Reversed = True
body3 = doc.addObject("PartDesign::Body", "Body002")

# Sketch on XY plane
sketch7 = doc.addObject("Sketcher::SketchObject", "Sketch006")
body3.addObject(sketch7)
sketch7.AttachmentSupport = (doc.getObject("XY_Plane002"), [""])
sketch7.MapMode = "FlatFace"
sketch7.AttachmentOffset = App.Placement(V(0, 0, 1.6), App.Rotation())
sketch7.addGeometry([
    Part.Circle(V(19, -24.5, 0), V(0, 0, 1), 3),
    Part.Circle(V(19, -24.5, 0), V(0, 0, 1), 1.4),
], False)
sketch7.addConstraint([
    Sketcher.Constraint("Coincident", 1, 3, 0, 3),
    Sketcher.Constraint("Diameter", 0, Q("6 mm")),
    Sketcher.Constraint("Diameter", 1, Q("2.7 mm")),
    Sketcher.Constraint("DistanceX", -1, 1, 0, 3, Q("19 mm")),
    Sketcher.Constraint("DistanceY", 0, 3, -1, 1, Q("24.5 mm")),
])
sketch7.setExpression("Constraints[1]", "Params.sketch7_diameter")
sketch7.setExpression("Constraints[2]", "Params.sketch7_diameter2")
pad3 = doc.addObject("PartDesign::Pad", "Pad002")
body3.addObject(pad3)
pad3.Profile = sketch7
pad3.setExpression("Length", "Params.pad3_length")
pad3.Reversed = True
body4 = doc.addObject("PartDesign::Body", "Body003")

# Sketch on XY plane
sketch8 = doc.addObject("Sketcher::SketchObject", "Sketch007")
body4.addObject(sketch8)
sketch8.AttachmentSupport = (doc.getObject("XY_Plane003"), [""])
sketch8.MapMode = "FlatFace"
sketch8.AttachmentOffset = App.Placement(V(0, 0, 1.6), App.Rotation())
sketch8.addGeometry([
    Part.Circle(V(19, 24.5, 0), V(0, 0, 1), 3),
    Part.Circle(V(19, 24.5, 0), V(0, 0, 1), 1.4),
], False)
sketch8.addConstraint([
    Sketcher.Constraint("Coincident", 1, 3, 0, 3),
    Sketcher.Constraint("Diameter", 0, Q("6 mm")),
    Sketcher.Constraint("Diameter", 1, Q("2.7 mm")),
    Sketcher.Constraint("DistanceX", -1, 1, 0, 3, Q("19 mm")),
    Sketcher.Constraint("DistanceY", -1, 1, 0, 3, Q("24.5 mm")),
])
sketch8.setExpression("Constraints[1]", "Params.sketch8_diameter")
sketch8.setExpression("Constraints[2]", "Params.sketch8_diameter2")
pad4 = doc.addObject("PartDesign::Pad", "Pad003")
body4.addObject(pad4)
pad4.Profile = sketch8
pad4.setExpression("Length", "Params.pad4_length")
pad4.Reversed = True
body5 = doc.addObject("PartDesign::Body", "Body004")

# Sketch on XY plane
sketch9 = doc.addObject("Sketcher::SketchObject", "Sketch008")
body5.addObject(sketch9)
sketch9.AttachmentSupport = (doc.getObject("XY_Plane004"), [""])
sketch9.MapMode = "FlatFace"
sketch9.AttachmentOffset = App.Placement(V(0, 0, 1.6), App.Rotation())
sketch9.addGeometry([
    Part.Circle(V(-39, 24.5, 0), V(0, 0, 1), 3),
    Part.Circle(V(-39, 24.5, 0), V(0, 0, 1), 1.3),
], False)
sketch9.addConstraint([
    Sketcher.Constraint("Coincident", 1, 3, 0, 3),
    Sketcher.Constraint("Diameter", 0, Q("6 mm")),
    Sketcher.Constraint("Diameter", 1, Q("2.6 mm")),
    Sketcher.Constraint("DistanceX", 0, 3, -1, 1, Q("39 mm")),
    Sketcher.Constraint("DistanceY", -1, 1, 0, 3, Q("24.5 mm")),
])
sketch9.setExpression("Constraints[1]", "Params.sketch9_diameter")
sketch9.setExpression("Constraints[2]", "Params.sketch9_diameter2")
pad5 = doc.addObject("PartDesign::Pad", "Pad004")
body5.addObject(pad5)
pad5.Profile = sketch9
pad5.setExpression("Length", "Params.pad5_length")
pad5.Reversed = True

doc.recompute()
